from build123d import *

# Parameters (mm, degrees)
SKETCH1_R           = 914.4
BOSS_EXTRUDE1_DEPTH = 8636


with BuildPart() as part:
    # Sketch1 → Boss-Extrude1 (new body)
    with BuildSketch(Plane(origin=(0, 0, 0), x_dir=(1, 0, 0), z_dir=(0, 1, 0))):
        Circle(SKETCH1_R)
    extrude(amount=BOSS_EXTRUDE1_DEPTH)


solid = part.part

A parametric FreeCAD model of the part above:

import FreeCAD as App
import Part
import Sketcher
Q = App.Units.Quantity

doc = App.newDocument("Part")
body = doc.addObject("PartDesign::Body", "Body")

# Sketch on XZ plane
sketch1 = body.newObject("Sketcher::SketchObject", "Sketch")
sketch1.AttachmentSupport = (doc.getObject("XZ_Plane"), [""])
sketch1.MapMode = "FlatFace"
sketch1.addGeometry(Part.Circle(App.Vector(0, 0, 0), App.Vector(0, 0, 1), 914), False)
sketch1.addConstraint(Sketcher.Constraint("Coincident", 0, 3, -1, 1))
sketch1.addConstraint(Sketcher.Constraint("Diameter", 0, Q("72 in")))
pad1 = body.newObject("PartDesign::Pad", "Pad")
pad1.Profile = sketch1
pad1.Length = Q("340 in")
pad1.Reversed = True

doc.recompute()
